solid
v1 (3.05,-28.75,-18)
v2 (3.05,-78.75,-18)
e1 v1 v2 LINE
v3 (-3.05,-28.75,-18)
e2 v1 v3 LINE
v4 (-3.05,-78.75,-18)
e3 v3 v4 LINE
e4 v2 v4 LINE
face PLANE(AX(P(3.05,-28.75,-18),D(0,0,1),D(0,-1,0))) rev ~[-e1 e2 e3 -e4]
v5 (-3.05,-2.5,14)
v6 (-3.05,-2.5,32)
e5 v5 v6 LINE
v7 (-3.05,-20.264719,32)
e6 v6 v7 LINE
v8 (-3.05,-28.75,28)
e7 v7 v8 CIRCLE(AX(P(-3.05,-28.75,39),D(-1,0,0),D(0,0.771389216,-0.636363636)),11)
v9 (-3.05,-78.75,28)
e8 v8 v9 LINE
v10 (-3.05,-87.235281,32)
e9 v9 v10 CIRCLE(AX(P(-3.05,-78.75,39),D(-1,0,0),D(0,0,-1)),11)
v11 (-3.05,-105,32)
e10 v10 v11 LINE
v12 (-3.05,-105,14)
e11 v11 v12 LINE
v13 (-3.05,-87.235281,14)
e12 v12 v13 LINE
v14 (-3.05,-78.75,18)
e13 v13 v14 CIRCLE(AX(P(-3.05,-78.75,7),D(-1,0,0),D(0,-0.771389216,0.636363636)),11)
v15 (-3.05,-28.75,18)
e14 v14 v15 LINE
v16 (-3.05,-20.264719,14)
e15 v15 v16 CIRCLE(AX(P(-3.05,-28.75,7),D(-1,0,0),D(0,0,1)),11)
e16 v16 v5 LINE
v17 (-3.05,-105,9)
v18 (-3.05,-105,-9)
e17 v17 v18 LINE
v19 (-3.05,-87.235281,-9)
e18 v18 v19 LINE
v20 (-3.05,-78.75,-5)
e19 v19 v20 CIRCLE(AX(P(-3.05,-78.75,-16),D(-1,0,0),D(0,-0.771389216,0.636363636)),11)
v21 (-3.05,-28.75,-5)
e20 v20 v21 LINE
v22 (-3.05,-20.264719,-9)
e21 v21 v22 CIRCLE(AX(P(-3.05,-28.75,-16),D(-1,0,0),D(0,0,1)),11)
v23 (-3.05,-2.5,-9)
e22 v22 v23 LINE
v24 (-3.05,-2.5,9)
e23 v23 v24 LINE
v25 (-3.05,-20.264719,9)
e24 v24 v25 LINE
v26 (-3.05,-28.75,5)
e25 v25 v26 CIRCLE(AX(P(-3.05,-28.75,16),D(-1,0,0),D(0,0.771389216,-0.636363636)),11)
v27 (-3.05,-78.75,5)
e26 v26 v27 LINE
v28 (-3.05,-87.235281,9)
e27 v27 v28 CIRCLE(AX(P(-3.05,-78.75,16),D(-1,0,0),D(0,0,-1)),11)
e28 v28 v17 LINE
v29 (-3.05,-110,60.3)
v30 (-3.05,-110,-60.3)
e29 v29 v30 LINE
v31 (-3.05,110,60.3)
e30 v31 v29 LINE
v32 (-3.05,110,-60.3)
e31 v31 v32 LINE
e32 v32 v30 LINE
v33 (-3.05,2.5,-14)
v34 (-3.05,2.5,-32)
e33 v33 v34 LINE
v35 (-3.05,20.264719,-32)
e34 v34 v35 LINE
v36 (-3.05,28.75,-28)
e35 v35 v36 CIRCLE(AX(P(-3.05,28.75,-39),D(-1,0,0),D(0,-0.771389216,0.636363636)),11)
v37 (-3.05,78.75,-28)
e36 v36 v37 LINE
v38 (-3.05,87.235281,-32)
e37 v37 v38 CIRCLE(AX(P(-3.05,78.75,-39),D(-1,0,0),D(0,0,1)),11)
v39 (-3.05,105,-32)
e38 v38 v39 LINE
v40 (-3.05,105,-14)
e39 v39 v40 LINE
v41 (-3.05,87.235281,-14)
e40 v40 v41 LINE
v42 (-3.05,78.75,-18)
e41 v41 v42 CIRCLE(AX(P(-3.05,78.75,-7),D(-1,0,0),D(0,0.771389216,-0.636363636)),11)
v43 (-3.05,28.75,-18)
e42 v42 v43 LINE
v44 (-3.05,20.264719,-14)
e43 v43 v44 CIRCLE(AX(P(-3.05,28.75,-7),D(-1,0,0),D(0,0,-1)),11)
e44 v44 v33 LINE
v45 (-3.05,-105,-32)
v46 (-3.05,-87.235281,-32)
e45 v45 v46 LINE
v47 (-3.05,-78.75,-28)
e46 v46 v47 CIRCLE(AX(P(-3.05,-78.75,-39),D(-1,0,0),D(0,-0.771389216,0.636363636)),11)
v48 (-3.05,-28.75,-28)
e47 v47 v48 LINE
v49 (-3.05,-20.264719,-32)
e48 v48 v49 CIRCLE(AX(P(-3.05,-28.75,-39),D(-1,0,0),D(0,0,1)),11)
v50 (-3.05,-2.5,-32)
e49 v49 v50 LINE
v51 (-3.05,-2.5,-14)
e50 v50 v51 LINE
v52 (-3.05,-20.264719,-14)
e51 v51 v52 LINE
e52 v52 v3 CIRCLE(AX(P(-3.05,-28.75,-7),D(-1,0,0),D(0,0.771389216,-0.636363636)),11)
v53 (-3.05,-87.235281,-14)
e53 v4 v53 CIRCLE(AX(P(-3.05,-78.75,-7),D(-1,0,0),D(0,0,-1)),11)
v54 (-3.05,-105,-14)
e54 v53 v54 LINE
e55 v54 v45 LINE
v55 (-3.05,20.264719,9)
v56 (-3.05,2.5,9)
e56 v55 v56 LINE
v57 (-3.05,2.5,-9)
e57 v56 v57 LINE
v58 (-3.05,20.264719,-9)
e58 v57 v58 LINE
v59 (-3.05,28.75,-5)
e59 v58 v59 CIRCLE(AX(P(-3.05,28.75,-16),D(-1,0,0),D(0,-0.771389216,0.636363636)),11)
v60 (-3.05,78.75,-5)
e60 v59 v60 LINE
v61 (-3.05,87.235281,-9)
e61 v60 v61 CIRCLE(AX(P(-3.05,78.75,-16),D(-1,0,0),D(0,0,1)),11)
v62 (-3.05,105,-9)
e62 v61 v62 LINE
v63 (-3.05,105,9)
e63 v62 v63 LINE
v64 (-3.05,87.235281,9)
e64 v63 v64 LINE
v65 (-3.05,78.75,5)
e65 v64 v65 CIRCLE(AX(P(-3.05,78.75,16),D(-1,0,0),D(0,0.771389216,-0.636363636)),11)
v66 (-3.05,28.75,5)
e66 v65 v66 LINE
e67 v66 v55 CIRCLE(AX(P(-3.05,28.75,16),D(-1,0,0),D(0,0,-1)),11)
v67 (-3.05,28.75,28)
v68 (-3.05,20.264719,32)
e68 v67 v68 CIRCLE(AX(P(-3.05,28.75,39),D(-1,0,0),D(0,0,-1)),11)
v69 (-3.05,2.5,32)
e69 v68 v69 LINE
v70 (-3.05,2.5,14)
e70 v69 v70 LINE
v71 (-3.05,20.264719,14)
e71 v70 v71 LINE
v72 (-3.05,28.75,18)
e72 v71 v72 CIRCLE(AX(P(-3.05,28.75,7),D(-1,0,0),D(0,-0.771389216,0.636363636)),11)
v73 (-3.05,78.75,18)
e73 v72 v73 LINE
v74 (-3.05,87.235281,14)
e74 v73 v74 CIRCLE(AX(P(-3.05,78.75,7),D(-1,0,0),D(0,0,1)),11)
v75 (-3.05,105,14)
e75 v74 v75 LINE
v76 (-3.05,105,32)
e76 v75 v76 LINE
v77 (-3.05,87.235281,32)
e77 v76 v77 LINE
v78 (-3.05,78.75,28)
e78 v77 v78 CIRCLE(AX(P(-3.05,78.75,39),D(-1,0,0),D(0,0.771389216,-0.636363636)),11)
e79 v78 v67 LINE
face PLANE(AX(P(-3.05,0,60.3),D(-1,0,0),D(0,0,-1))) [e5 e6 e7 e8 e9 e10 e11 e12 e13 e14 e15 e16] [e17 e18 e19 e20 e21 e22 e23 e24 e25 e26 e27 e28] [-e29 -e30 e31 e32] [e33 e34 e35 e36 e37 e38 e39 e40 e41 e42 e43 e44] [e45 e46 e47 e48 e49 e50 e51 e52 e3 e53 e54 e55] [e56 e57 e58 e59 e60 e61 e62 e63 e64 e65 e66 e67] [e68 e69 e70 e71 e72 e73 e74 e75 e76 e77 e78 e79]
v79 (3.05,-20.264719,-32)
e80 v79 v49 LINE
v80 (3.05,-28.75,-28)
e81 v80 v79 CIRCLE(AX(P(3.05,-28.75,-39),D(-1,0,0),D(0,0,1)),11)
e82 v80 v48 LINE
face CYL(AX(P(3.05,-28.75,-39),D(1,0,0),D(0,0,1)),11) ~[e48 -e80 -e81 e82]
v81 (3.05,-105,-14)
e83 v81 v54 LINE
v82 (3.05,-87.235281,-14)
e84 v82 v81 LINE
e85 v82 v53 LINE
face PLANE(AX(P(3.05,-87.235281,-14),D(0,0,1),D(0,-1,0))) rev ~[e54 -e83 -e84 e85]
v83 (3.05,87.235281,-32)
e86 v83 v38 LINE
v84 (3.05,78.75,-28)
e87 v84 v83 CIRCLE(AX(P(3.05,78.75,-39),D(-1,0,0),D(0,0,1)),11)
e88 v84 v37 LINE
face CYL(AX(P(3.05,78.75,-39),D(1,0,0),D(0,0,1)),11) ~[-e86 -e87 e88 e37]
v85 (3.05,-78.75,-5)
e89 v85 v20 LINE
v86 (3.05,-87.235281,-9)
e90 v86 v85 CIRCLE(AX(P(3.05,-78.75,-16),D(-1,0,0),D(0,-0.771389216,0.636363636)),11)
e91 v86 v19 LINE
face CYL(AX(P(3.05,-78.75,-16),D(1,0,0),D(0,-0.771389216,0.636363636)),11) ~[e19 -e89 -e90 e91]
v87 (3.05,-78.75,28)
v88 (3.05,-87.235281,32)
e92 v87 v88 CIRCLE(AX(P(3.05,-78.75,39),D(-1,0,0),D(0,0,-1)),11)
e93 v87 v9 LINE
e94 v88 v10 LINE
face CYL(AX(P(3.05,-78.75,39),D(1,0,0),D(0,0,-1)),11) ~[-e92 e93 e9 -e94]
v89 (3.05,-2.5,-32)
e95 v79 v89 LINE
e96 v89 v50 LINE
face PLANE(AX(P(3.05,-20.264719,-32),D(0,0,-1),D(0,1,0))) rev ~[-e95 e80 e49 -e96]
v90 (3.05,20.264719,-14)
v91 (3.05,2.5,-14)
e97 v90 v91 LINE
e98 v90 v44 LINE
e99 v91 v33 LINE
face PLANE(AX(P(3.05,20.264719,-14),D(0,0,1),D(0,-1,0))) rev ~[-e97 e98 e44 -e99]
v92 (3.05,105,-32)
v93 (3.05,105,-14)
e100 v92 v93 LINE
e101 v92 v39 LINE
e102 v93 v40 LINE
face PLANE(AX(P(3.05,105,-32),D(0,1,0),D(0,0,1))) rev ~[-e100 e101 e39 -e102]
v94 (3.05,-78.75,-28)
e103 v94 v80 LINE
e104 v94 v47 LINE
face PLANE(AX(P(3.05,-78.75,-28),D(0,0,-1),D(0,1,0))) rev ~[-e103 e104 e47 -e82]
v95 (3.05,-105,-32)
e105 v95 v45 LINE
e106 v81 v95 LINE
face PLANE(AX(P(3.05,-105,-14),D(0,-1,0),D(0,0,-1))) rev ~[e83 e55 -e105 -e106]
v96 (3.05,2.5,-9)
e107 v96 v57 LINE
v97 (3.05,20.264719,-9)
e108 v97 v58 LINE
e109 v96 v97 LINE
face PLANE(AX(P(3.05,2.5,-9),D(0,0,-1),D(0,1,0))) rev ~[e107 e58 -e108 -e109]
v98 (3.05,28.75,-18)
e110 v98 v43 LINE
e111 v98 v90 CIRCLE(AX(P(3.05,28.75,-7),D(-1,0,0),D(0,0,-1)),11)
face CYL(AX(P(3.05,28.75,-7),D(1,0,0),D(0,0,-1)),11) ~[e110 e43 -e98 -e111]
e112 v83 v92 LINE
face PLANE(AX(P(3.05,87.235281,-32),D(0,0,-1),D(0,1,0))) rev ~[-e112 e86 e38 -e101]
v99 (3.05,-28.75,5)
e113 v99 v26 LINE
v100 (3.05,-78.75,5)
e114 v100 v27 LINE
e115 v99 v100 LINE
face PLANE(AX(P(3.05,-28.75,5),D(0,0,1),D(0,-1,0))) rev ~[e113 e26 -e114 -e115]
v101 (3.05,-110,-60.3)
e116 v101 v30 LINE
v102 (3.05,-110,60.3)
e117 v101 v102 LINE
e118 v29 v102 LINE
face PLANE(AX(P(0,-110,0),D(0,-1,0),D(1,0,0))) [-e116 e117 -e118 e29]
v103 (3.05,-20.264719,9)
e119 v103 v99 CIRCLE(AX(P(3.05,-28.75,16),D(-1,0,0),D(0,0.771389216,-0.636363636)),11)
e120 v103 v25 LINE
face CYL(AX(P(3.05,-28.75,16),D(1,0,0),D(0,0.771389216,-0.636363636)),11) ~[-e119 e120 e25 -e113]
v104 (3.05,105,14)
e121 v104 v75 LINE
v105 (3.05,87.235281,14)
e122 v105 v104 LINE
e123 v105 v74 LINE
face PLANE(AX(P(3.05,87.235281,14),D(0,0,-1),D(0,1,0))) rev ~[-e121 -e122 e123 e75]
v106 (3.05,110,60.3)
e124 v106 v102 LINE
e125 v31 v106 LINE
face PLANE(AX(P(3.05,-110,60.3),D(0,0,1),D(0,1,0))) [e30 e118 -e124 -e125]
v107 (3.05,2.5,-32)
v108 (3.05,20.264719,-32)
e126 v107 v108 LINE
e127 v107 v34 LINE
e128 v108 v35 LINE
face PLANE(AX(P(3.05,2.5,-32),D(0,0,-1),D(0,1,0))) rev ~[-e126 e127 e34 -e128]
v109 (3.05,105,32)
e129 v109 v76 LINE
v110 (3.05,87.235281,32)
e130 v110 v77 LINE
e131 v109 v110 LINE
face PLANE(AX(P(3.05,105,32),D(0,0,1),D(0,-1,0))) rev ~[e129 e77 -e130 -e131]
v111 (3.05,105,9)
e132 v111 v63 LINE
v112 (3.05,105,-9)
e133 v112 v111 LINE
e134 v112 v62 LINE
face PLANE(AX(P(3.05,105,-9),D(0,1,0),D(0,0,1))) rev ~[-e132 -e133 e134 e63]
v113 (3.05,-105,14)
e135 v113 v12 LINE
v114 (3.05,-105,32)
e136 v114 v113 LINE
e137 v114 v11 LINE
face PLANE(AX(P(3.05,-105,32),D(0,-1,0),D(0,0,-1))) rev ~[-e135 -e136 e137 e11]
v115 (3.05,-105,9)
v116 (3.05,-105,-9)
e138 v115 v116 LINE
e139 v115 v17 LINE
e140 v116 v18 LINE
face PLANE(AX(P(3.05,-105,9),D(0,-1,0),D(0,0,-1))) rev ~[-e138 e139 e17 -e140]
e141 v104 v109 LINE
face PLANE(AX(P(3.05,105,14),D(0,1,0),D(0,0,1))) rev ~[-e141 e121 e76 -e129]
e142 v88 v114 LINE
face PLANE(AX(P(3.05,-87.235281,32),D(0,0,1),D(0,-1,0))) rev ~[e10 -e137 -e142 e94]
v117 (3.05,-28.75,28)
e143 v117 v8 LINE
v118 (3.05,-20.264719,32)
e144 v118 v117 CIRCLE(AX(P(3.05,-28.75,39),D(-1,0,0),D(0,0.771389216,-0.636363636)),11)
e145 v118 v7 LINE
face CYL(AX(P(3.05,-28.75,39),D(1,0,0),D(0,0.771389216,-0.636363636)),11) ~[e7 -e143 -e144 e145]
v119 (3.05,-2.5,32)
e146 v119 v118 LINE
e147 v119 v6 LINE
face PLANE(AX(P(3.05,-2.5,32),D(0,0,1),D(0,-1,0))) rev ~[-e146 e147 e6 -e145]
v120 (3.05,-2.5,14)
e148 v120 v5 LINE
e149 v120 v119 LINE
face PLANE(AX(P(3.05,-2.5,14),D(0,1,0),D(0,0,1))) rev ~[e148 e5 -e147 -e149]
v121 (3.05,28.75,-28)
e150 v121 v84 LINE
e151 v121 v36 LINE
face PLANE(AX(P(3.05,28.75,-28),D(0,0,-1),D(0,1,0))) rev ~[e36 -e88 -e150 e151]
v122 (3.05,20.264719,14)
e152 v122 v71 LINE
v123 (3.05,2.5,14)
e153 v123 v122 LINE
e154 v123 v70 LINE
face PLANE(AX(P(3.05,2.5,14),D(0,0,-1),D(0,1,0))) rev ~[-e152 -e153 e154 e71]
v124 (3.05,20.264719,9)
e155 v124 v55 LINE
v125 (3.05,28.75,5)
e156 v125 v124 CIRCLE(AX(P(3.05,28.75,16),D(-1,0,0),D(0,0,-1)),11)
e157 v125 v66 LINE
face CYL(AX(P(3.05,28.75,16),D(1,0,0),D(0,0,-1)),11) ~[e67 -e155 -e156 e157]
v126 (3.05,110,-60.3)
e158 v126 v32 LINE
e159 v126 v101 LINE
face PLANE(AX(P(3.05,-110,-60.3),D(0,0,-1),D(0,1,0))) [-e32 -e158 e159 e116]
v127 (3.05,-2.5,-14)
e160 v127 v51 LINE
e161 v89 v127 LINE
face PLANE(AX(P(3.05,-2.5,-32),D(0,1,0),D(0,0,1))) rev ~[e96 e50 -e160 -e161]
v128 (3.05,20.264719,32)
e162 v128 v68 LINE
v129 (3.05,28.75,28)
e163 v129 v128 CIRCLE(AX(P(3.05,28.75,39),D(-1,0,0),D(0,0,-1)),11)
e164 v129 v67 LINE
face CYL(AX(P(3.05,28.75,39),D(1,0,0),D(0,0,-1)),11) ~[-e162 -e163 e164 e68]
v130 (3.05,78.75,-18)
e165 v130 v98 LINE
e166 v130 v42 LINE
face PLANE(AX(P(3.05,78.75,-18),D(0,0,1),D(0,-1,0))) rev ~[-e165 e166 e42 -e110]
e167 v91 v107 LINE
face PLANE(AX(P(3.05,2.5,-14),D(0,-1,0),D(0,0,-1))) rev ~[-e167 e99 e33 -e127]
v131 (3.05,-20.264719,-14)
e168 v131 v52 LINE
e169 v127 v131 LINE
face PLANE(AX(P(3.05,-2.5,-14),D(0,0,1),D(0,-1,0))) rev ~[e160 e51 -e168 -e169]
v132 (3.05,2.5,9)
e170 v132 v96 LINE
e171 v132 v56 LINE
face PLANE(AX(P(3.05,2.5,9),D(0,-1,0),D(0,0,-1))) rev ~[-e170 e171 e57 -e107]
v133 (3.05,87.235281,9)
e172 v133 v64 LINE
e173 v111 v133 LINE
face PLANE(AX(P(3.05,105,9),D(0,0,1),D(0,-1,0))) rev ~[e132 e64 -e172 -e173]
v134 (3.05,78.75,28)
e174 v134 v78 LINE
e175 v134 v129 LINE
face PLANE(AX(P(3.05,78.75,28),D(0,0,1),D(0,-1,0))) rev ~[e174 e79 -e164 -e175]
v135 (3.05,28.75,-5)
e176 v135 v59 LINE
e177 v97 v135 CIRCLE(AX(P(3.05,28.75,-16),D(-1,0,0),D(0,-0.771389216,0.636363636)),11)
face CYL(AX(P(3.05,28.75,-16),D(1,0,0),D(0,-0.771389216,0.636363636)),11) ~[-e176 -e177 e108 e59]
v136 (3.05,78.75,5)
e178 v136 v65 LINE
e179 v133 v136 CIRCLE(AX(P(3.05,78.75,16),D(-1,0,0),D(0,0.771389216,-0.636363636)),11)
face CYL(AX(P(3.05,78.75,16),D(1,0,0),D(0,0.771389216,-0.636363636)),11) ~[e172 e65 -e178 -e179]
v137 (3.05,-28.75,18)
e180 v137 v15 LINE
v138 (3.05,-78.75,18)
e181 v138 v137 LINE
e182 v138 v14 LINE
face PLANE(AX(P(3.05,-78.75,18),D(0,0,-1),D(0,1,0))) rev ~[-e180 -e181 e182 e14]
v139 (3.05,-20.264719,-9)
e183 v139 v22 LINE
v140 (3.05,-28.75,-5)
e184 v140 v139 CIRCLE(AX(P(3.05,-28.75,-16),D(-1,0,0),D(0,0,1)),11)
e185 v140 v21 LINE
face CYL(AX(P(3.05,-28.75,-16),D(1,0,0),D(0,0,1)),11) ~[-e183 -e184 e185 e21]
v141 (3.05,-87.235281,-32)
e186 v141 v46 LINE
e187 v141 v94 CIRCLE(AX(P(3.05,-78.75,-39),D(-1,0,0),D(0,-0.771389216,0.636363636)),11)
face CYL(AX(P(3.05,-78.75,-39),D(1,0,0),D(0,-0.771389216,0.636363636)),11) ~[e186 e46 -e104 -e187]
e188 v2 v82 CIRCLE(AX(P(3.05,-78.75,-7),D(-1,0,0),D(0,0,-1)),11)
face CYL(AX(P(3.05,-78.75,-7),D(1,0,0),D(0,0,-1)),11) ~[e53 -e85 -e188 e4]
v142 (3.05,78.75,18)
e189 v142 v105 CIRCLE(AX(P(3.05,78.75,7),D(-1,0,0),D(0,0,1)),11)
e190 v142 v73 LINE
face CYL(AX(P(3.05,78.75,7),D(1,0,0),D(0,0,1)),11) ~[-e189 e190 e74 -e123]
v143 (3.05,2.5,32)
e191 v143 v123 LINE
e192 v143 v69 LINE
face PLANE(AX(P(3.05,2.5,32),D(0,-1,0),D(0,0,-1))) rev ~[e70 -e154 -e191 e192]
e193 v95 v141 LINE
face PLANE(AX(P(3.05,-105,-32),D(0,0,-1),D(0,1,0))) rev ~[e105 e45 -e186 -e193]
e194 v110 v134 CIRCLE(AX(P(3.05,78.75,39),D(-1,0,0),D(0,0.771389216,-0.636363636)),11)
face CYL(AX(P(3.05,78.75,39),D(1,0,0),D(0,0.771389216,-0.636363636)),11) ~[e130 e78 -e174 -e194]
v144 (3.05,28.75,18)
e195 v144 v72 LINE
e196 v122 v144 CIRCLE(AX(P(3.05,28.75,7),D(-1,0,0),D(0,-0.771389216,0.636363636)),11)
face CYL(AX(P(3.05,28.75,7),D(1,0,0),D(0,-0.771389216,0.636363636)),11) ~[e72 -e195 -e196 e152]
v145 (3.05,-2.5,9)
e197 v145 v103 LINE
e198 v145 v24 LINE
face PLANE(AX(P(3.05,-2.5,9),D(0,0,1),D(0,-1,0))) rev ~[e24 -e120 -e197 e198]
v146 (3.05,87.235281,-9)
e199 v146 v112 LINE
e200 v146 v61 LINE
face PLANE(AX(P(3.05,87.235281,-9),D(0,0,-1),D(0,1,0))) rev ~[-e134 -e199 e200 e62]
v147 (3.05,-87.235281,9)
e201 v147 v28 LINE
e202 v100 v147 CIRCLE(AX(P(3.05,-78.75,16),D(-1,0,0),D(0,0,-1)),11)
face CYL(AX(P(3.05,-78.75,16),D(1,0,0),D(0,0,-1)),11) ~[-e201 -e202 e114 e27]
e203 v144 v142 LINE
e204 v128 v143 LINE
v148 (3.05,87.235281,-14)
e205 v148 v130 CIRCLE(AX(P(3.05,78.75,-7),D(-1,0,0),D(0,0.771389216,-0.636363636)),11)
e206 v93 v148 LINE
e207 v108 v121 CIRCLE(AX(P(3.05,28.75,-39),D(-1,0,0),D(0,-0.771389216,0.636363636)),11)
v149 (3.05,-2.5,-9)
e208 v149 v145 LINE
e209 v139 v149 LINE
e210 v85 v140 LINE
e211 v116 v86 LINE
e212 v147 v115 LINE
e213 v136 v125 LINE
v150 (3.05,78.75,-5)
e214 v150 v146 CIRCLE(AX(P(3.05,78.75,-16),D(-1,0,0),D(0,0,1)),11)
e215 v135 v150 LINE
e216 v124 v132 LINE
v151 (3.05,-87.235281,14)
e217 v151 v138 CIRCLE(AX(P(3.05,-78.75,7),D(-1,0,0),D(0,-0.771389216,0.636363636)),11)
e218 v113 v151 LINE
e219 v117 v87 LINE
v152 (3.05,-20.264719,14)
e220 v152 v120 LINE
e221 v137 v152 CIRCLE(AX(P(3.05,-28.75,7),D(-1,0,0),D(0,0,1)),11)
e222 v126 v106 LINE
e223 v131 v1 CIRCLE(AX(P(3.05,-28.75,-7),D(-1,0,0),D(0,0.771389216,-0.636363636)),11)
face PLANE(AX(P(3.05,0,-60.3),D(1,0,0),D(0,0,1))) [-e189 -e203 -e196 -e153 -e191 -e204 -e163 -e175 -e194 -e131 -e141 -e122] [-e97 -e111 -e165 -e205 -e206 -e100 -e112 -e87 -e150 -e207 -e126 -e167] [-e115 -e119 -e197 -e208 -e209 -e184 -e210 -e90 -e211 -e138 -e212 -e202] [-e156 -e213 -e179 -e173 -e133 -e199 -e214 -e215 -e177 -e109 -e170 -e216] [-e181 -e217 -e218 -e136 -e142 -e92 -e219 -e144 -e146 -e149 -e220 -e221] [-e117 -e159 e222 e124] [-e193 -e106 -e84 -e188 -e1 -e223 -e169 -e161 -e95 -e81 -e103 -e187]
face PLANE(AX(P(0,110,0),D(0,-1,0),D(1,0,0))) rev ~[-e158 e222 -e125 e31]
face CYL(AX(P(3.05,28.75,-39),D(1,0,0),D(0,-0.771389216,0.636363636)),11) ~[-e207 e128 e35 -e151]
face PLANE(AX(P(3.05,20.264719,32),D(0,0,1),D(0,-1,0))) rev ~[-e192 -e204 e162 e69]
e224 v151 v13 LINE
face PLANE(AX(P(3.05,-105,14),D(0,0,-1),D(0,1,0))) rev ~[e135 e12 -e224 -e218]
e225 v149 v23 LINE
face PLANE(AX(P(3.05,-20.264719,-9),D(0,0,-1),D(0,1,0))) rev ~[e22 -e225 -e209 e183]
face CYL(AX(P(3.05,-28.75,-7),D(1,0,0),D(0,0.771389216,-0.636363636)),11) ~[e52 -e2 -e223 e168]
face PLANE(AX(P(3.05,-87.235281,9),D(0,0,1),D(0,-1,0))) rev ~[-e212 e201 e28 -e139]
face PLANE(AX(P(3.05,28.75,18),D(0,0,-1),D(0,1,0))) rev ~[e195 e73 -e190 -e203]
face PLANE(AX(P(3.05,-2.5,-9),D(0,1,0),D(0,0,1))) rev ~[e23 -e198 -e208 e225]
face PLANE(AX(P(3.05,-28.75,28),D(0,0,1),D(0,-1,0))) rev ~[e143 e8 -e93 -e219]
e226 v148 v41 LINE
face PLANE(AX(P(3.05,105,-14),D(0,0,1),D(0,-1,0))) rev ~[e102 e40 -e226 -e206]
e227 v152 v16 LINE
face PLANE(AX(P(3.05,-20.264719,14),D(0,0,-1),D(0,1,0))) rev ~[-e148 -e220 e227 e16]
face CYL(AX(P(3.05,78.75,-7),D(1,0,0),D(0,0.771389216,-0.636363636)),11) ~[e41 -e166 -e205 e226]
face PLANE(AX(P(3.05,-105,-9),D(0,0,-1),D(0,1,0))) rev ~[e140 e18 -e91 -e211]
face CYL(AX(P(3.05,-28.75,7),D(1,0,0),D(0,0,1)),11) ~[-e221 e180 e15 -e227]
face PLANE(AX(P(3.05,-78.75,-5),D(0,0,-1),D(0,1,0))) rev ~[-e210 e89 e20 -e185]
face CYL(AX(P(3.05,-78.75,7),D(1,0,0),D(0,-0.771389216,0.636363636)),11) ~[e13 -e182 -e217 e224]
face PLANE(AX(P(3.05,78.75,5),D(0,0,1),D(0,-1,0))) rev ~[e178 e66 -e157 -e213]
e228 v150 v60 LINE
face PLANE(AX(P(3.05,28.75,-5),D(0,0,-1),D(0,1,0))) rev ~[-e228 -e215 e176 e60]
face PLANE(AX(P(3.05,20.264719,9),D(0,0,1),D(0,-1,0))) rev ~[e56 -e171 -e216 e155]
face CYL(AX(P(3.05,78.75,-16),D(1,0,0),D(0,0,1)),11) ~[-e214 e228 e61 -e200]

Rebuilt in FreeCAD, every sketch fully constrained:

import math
import FreeCAD as App
import Part
import Sketcher
from FreeCAD import Vector


def add_polygon(sketch, points):
    """Adds a closed chain of lines whose ends are joined by coincident constraints."""
    first, n = sketch.GeometryCount, len(points)
    for a, b in zip(points, points[1:] + points[:1]):
        sketch.addGeometry(Part.LineSegment(App.Vector(*a, 0), App.Vector(*b, 0)), False)
    for i in range(n):
        sketch.addConstraint(Sketcher.Constraint("Coincident", first + i, 2, first + (i + 1) % n, 1))

doc = App.newDocument("Part")
body = doc.addObject("PartDesign::Body", "Body")

# Sketch on XZ plane
sketch1 = doc.addObject("Sketcher::SketchObject", "Sketch")
body.addObject(sketch1)
sketch1.AttachmentSupport = (doc.XZ_Plane, [""])
sketch1.MapMode = "FlatFace"
sketch1.addGeometry(Part.ArcOfCircle(Part.Circle(Vector(11.95, -60.3, 0), Vector(0, 0, 1), 8.9), math.radians(180), math.radians(270)), False)
sketch1.addGeometry(Part.LineSegment(Vector(3.05, -60.3, 0), Vector(3.05, 60.3, 0)), False)
sketch1.addGeometry(Part.ArcOfCircle(Part.Circle(Vector(11.95, 60.3, 0), Vector(0, 0, 1), 8.9), math.radians(90), math.radians(180)), False)
sketch1.addGeometry(Part.LineSegment(Vector(11.95, 69.2, 0), Vector(76, 69.2, 0)), False)
sketch1.addGeometry(Part.LineSegment(Vector(76, 69.2, 0), Vector(76, 76, 0)), False)
sketch1.addGeometry(Part.LineSegment(Vector(76, 76, 0), Vector(-76, 76, 0)), False)
sketch1.addGeometry(Part.LineSegment(Vector(-76, 76, 0), Vector(-76, 69.2, 0)), False)
sketch1.addGeometry(Part.LineSegment(Vector(-76, 69.2, 0), Vector(-11.95, 69.2, 0)), False)
sketch1.addGeometry(Part.ArcOfCircle(Part.Circle(Vector(-11.95, 60.3, 0), Vector(0, 0, 1), 8.9), math.radians(0), math.radians(90)), False)
sketch1.addGeometry(Part.LineSegment(Vector(-3.05, 60.3, 0), Vector(-3.05, -60.3, 0)), False)
sketch1.addGeometry(Part.ArcOfCircle(Part.Circle(Vector(-11.95, -60.3, 0), Vector(0, 0, 1), 8.9), math.radians(-90), math.radians(0)), False)
sketch1.addGeometry(Part.LineSegment(Vector(-11.95, -69.2, 0), Vector(-76, -69.2, 0)), False)
sketch1.addGeometry(Part.LineSegment(Vector(-76, -69.2, 0), Vector(-76, -76, 0)), False)
sketch1.addGeometry(Part.LineSegment(Vector(-76, -76, 0), Vector(76, -76, 0)), False)
sketch1.addGeometry(Part.LineSegment(Vector(76, -76, 0), Vector(76, -69.2, 0)), False)
sketch1.addGeometry(Part.LineSegment(Vector(76, -69.2, 0), Vector(11.95, -69.2, 0)), False)
sketch1.addConstraint(Sketcher.Constraint("Tangent", 0, 1, 1, 1))
sketch1.addConstraint(Sketcher.Constraint("Tangent", 1, 2, 2, 2))
sketch1.addConstraint(Sketcher.Constraint("Tangent", 2, 1, 3, 1))
sketch1.addConstraint(Sketcher.Constraint("Coincident", 3, 2, 4, 1))
sketch1.addConstraint(Sketcher.Constraint("Coincident", 4, 2, 5, 1))
sketch1.addConstraint(Sketcher.Constraint("Coincident", 5, 2, 6, 1))
sketch1.addConstraint(Sketcher.Constraint("Coincident", 6, 2, 7, 1))
sketch1.addConstraint(Sketcher.Constraint("Tangent", 7, 2, 8, 2))
sketch1.addConstraint(Sketcher.Constraint("Tangent", 8, 1, 9, 1))
sketch1.addConstraint(Sketcher.Constraint("Tangent", 9, 2, 10, 2))
sketch1.addConstraint(Sketcher.Constraint("Tangent", 10, 1, 11, 1))
sketch1.addConstraint(Sketcher.Constraint("Coincident", 11, 2, 12, 1))
sketch1.addConstraint(Sketcher.Constraint("Coincident", 12, 2, 13, 1))
sketch1.addConstraint(Sketcher.Constraint("Coincident", 13, 2, 14, 1))
sketch1.addConstraint(Sketcher.Constraint("Coincident", 14, 2, 15, 1))
sketch1.addConstraint(Sketcher.Constraint("Tangent", 15, 2, 0, 2))
sketch1.addConstraint(Sketcher.Constraint("Vertical", 1))
sketch1.addConstraint(Sketcher.Constraint("Horizontal", 3))
sketch1.addConstraint(Sketcher.Constraint("Vertical", 4))
sketch1.addConstraint(Sketcher.Constraint("Horizontal", 5))
sketch1.addConstraint(Sketcher.Constraint("Vertical", 6))
sketch1.addConstraint(Sketcher.Constraint("Horizontal", 7))
sketch1.addConstraint(Sketcher.Constraint("Vertical", 9))
sketch1.addConstraint(Sketcher.Constraint("Horizontal", 11))
sketch1.addConstraint(Sketcher.Constraint("Vertical", 12))
sketch1.addConstraint(Sketcher.Constraint("Horizontal", 13))
sketch1.addConstraint(Sketcher.Constraint("Vertical", 14))
sketch1.addConstraint(Sketcher.Constraint("Horizontal", 15))
sketch1.addConstraint(Sketcher.Constraint("Equal", 0, 2))
sketch1.addConstraint(Sketcher.Constraint("Equal", 2, 8))
sketch1.addConstraint(Sketcher.Constraint("Equal", 8, 10))
sketch1.addConstraint(Sketcher.Constraint("Symmetric", 0, 3, 8, 3, -1, 1))
sketch1.addConstraint(Sketcher.Constraint("Symmetric", 3, 2, 11, 2, -1, 1))
sketch1.addConstraint(Sketcher.Constraint("Symmetric", 5, 2, 13, 2, -1, 1))
sketch1.addConstraint(Sketcher.Constraint("Symmetric", 3, 2, 6, 2, -2))
sketch1.addConstraint(Sketcher.Constraint("Radius", 0, 8.9))
sketch1.addConstraint(Sketcher.Constraint("DistanceX", 5, 2, 5, 1, 152.0))
sketch1.addConstraint(Sketcher.Constraint("DistanceY", 1, 1, 1, 2, 120.6))
sketch1.addConstraint(Sketcher.Constraint("DistanceY", 4, 1, 4, 2, 6.8))
sketch1.addConstraint(Sketcher.Constraint("DistanceX", 10, 3, 0, 1, 15.0))
pad1 = doc.addObject("PartDesign::Pad", "Pad")
body.addObject(pad1)
pad1.Profile = sketch1
pad1.Length = 220
pad1.Midplane = True

# Sketch on YZ plane
sketch2 = doc.addObject("Sketcher::SketchObject", "Sketch001")
body.addObject(sketch2)
sketch2.AttachmentSupport = (doc.YZ_Plane, [""])
sketch2.MapMode = "FlatFace"
sketch2.AttachmentOffset = App.Placement(Vector(0, 0, 3.05), App.Rotation())
sketch2.addGeometry(Part.LineSegment(Vector(-20.264719, -9, 0), Vector(-2.5, -9, 0)), False)
sketch2.addGeometry(Part.LineSegment(Vector(-2.5, -9, 0), Vector(-2.5, 9, 0)), False)
sketch2.addGeometry(Part.LineSegment(Vector(-2.5, 9, 0), Vector(-20.264719, 9, 0)), False)
sketch2.addGeometry(Part.ArcOfCircle(Part.Circle(Vector(-28.75, 16, 0), Vector(0, 0, 1), 11), math.radians(-90), math.radians(-39.521196)), False)
sketch2.addGeometry(Part.LineSegment(Vector(-28.75, 5, 0), Vector(-78.75, 5, 0)), False)
sketch2.addGeometry(Part.ArcOfCircle(Part.Circle(Vector(-78.75, 16, 0), Vector(0, 0, 1), 11), math.radians(-140.478804), math.radians(-90)), False)
sketch2.addGeometry(Part.LineSegment(Vector(-87.235281, 9, 0), Vector(-105, 9, 0)), False)
sketch2.addGeometry(Part.LineSegment(Vector(-105, 9, 0), Vector(-105, -9, 0)), False)
sketch2.addGeometry(Part.LineSegment(Vector(-105, -9, 0), Vector(-87.235281, -9, 0)), False)
sketch2.addGeometry(Part.ArcOfCircle(Part.Circle(Vector(-78.75, -16, 0), Vector(0, 0, 1), 11), math.radians(90), math.radians(140.478804)), False)
sketch2.addGeometry(Part.LineSegment(Vector(-78.75, -5, 0), Vector(-28.75, -5, 0)), False)
sketch2.addGeometry(Part.ArcOfCircle(Part.Circle(Vector(-28.75, -16, 0), Vector(0, 0, 1), 11), math.radians(39.521196), math.radians(90)), False)
sketch2.addGeometry(Part.ArcOfCircle(Part.Circle(Vector(-28.75, 39, 0), Vector(0, 0, 1), 11), math.radians(-90), math.radians(-39.521196)), False)
sketch2.addGeometry(Part.LineSegment(Vector(-28.75, 28, 0), Vector(-78.75, 28, 0)), False)
sketch2.addGeometry(Part.ArcOfCircle(Part.Circle(Vector(-78.75, 39, 0), Vector(0, 0, 1), 11), math.radians(-140.478804), math.radians(-90)), False)
sketch2.addGeometry(Part.LineSegment(Vector(-87.235281, 32, 0), Vector(-105, 32, 0)), False)
sketch2.addGeometry(Part.LineSegment(Vector(-105, 32, 0), Vector(-105, 14, 0)), False)
sketch2.addGeometry(Part.LineSegment(Vector(-105, 14, 0), Vector(-87.235281, 14, 0)), False)
sketch2.addGeometry(Part.ArcOfCircle(Part.Circle(Vector(-78.75, 7, 0), Vector(0, 0, 1), 11), math.radians(90), math.radians(140.478804)), False)
sketch2.addGeometry(Part.LineSegment(Vector(-78.75, 18, 0), Vector(-28.75, 18, 0)), False)
sketch2.addGeometry(Part.ArcOfCircle(Part.Circle(Vector(-28.75, 7, 0), Vector(0, 0, 1), 11), math.radians(39.521196), math.radians(90)), False)
sketch2.addGeometry(Part.LineSegment(Vector(-20.264719, 14, 0), Vector(-2.5, 14, 0)), False)
sketch2.addGeometry(Part.LineSegment(Vector(-2.5, 14, 0), Vector(-2.5, 32, 0)), False)
sketch2.addGeometry(Part.LineSegment(Vector(-2.5, 32, 0), Vector(-20.264719, 32, 0)), False)
sketch2.addGeometry(Part.ArcOfCircle(Part.Circle(Vector(-28.75, -39, 0), Vector(0, 0, 1), 11), math.radians(39.521196), math.radians(90)), False)
sketch2.addGeometry(Part.LineSegment(Vector(-20.264719, -32, 0), Vector(-2.5, -32, 0)), False)
sketch2.addGeometry(Part.LineSegment(Vector(-2.5, -32, 0), Vector(-2.5, -14, 0)), False)
sketch2.addGeometry(Part.LineSegment(Vector(-2.5, -14, 0), Vector(-20.264719, -14, 0)), False)
sketch2.addGeometry(Part.ArcOfCircle(Part.Circle(Vector(-28.75, -7, 0), Vector(0, 0, 1), 11), math.radians(-90), math.radians(-39.521196)), False)
sketch2.addGeometry(Part.LineSegment(Vector(-28.75, -18, 0), Vector(-78.75, -18, 0)), False)
sketch2.addGeometry(Part.ArcOfCircle(Part.Circle(Vector(-78.75, -7, 0), Vector(0, 0, 1), 11), math.radians(-140.478804), math.radians(-90)), False)
sketch2.addGeometry(Part.LineSegment(Vector(-87.235281, -14, 0), Vector(-105, -14, 0)), False)
sketch2.addGeometry(Part.LineSegment(Vector(-105, -14, 0), Vector(-105, -32, 0)), False)
sketch2.addGeometry(Part.LineSegment(Vector(-105, -32, 0), Vector(-87.235281, -32, 0)), False)
sketch2.addGeometry(Part.ArcOfCircle(Part.Circle(Vector(-78.75, -39, 0), Vector(0, 0, 1), 11), math.radians(90), math.radians(140.478804)), False)
sketch2.addGeometry(Part.LineSegment(Vector(-78.75, -28, 0), Vector(-28.75, -28, 0)), False)
sketch2.addGeometry(Part.LineSegment(Vector(78.75, 28, 0), Vector(28.75, 28, 0)), False)
sketch2.addGeometry(Part.ArcOfCircle(Part.Circle(Vector(28.75, 39, 0), Vector(0, 0, 1), 11), math.radians(-140.478804), math.radians(-90)), False)
sketch2.addGeometry(Part.LineSegment(Vector(20.264719, 32, 0), Vector(2.5, 32, 0)), False)
sketch2.addGeometry(Part.LineSegment(Vector(2.5, 32, 0), Vector(2.5, 14, 0)), False)
sketch2.addGeometry(Part.LineSegment(Vector(2.5, 14, 0), Vector(20.264719, 14, 0)), False)
sketch2.addGeometry(Part.ArcOfCircle(Part.Circle(Vector(28.75, 7, 0), Vector(0, 0, 1), 11), math.radians(90), math.radians(140.478804)), False)
sketch2.addGeometry(Part.LineSegment(Vector(28.75, 18, 0), Vector(78.75, 18, 0)), False)
sketch2.addGeometry(Part.ArcOfCircle(Part.Circle(Vector(78.75, 7, 0), Vector(0, 0, 1), 11), math.radians(39.521196), math.radians(90)), False)
sketch2.addGeometry(Part.LineSegment(Vector(87.235281, 14, 0), Vector(105, 14, 0)), False)
sketch2.addGeometry(Part.LineSegment(Vector(105, 14, 0), Vector(105, 32, 0)), False)
sketch2.addGeometry(Part.LineSegment(Vector(105, 32, 0), Vector(87.235281, 32, 0)), False)
sketch2.addGeometry(Part.ArcOfCircle(Part.Circle(Vector(78.75, 39, 0), Vector(0, 0, 1), 11), math.radians(-90), math.radians(-39.521196)), False)
sketch2.addGeometry(Part.ArcOfCircle(Part.Circle(Vector(28.75, -39, 0), Vector(0, 0, 1), 11), math.radians(90), math.radians(140.478804)), False)
sketch2.addGeometry(Part.LineSegment(Vector(28.75, -28, 0), Vector(78.75, -28, 0)), False)
sketch2.addGeometry(Part.ArcOfCircle(Part.Circle(Vector(78.75, -39, 0), Vector(0, 0, 1), 11), math.radians(39.521196), math.radians(90)), False)
sketch2.addGeometry(Part.LineSegment(Vector(87.235281, -32, 0), Vector(105, -32, 0)), False)
sketch2.addGeometry(Part.LineSegment(Vector(105, -32, 0), Vector(105, -14, 0)), False)
sketch2.addGeometry(Part.LineSegment(Vector(105, -14, 0), Vector(87.235281, -14, 0)), False)
sketch2.addGeometry(Part.ArcOfCircle(Part.Circle(Vector(78.75, -7, 0), Vector(0, 0, 1), 11), math.radians(-90), math.radians(-39.521196)), False)
sketch2.addGeometry(Part.LineSegment(Vector(78.75, -18, 0), Vector(28.75, -18, 0)), False)
sketch2.addGeometry(Part.ArcOfCircle(Part.Circle(Vector(28.75, -7, 0), Vector(0, 0, 1), 11), math.radians(-140.478804), math.radians(-90)), False)
sketch2.addGeometry(Part.LineSegment(Vector(20.264719, -14, 0), Vector(2.5, -14, 0)), False)
sketch2.addGeometry(Part.LineSegment(Vector(2.5, -14, 0), Vector(2.5, -32, 0)), False)
sketch2.addGeometry(Part.LineSegment(Vector(2.5, -32, 0), Vector(20.264719, -32, 0)), False)
sketch2.addGeometry(Part.ArcOfCircle(Part.Circle(Vector(28.75, -16, 0), Vector(0, 0, 1), 11), math.radians(90), math.radians(140.478804)), False)
sketch2.addGeometry(Part.LineSegment(Vector(28.75, -5, 0), Vector(78.75, -5, 0)), False)
sketch2.addGeometry(Part.ArcOfCircle(Part.Circle(Vector(78.75, -16, 0), Vector(0, 0, 1), 11), math.radians(39.521196), math.radians(90)), False)
sketch2.addGeometry(Part.LineSegment(Vector(87.235281, -9, 0), Vector(105, -9, 0)), False)
sketch2.addGeometry(Part.LineSegment(Vector(105, -9, 0), Vector(105, 9, 0)), False)
sketch2.addGeometry(Part.LineSegment(Vector(105, 9, 0), Vector(87.235281, 9, 0)), False)
sketch2.addGeometry(Part.ArcOfCircle(Part.Circle(Vector(78.75, 16, 0), Vector(0, 0, 1), 11), math.radians(-90), math.radians(-39.521196)), False)
sketch2.addGeometry(Part.LineSegment(Vector(78.75, 5, 0), Vector(28.75, 5, 0)), False)
sketch2.addGeometry(Part.ArcOfCircle(Part.Circle(Vector(28.75, 16, 0), Vector(0, 0, 1), 11), math.radians(-140.478804), math.radians(-90)), False)
sketch2.addGeometry(Part.LineSegment(Vector(20.264719, 9, 0), Vector(2.5, 9, 0)), False)
sketch2.addGeometry(Part.LineSegment(Vector(2.5, 9, 0), Vector(2.5, -9, 0)), False)
sketch2.addGeometry(Part.LineSegment(Vector(2.5, -9, 0), Vector(20.264719, -9, 0)), False)
sketch2.addConstraint(Sketcher.Constraint("Coincident", 0, 2, 1, 1))
sketch2.addConstraint(Sketcher.Constraint("Coincident", 1, 2, 2, 1))
sketch2.addConstraint(Sketcher.Constraint("Coincident", 2, 2, 3, 2))
sketch2.addConstraint(Sketcher.Constraint("Tangent", 3, 1, 4, 1))
sketch2.addConstraint(Sketcher.Constraint("Tangent", 4, 2, 5, 2))
sketch2.addConstraint(Sketcher.Constraint("Coincident", 5, 1, 6, 1))
sketch2.addConstraint(Sketcher.Constraint("Coincident", 6, 2, 7, 1))
sketch2.addConstraint(Sketcher.Constraint("Coincident", 7, 2, 8, 1))
sketch2.addConstraint(Sketcher.Constraint("Coincident", 8, 2, 9, 2))
sketch2.addConstraint(Sketcher.Constraint("Tangent", 9, 1, 10, 1))
sketch2.addConstraint(Sketcher.Constraint("Tangent", 10, 2, 11, 2))
sketch2.addConstraint(Sketcher.Constraint("Coincident", 11, 1, 0, 1))
sketch2.addConstraint(Sketcher.Constraint("Tangent", 12, 1, 13, 1))
sketch2.addConstraint(Sketcher.Constraint("Tangent", 13, 2, 14, 2))
sketch2.addConstraint(Sketcher.Constraint("Coincident", 14, 1, 15, 1))
sketch2.addConstraint(Sketcher.Constraint("Coincident", 15, 2, 16, 1))
sketch2.addConstraint(Sketcher.Constraint("Coincident", 16, 2, 17, 1))
sketch2.addConstraint(Sketcher.Constraint("Coincident", 17, 2, 18, 2))
sketch2.addConstraint(Sketcher.Constraint("Tangent", 18, 1, 19, 1))
sketch2.addConstraint(Sketcher.Constraint("Tangent", 19, 2, 20, 2))
sketch2.addConstraint(Sketcher.Constraint("Coincident", 20, 1, 21, 1))
sketch2.addConstraint(Sketcher.Constraint("Coincident", 21, 2, 22, 1))
sketch2.addConstraint(Sketcher.Constraint("Coincident", 22, 2, 23, 1))
sketch2.addConstraint(Sketcher.Constraint("Coincident", 23, 2, 12, 2))
sketch2.addConstraint(Sketcher.Constraint("Coincident", 24, 1, 25, 1))
sketch2.addConstraint(Sketcher.Constraint("Coincident", 25, 2, 26, 1))
sketch2.addConstraint(Sketcher.Constraint("Coincident", 26, 2, 27, 1))
sketch2.addConstraint(Sketcher.Constraint("Coincident", 27, 2, 28, 2))
sketch2.addConstraint(Sketcher.Constraint("Tangent", 28, 1, 29, 1))
sketch2.addConstraint(Sketcher.Constraint("Tangent", 29, 2, 30, 2))
sketch2.addConstraint(Sketcher.Constraint("Coincident", 30, 1, 31, 1))
sketch2.addConstraint(Sketcher.Constraint("Coincident", 31, 2, 32, 1))
sketch2.addConstraint(Sketcher.Constraint("Coincident", 32, 2, 33, 1))
sketch2.addConstraint(Sketcher.Constraint("Coincident", 33, 2, 34, 2))
sketch2.addConstraint(Sketcher.Constraint("Tangent", 34, 1, 35, 1))
sketch2.addConstraint(Sketcher.Constraint("Tangent", 35, 2, 24, 2))
sketch2.addConstraint(Sketcher.Constraint("Tangent", 36, 2, 37, 2))
sketch2.addConstraint(Sketcher.Constraint("Coincident", 37, 1, 38, 1))
sketch2.addConstraint(Sketcher.Constraint("Coincident", 38, 2, 39, 1))
sketch2.addConstraint(Sketcher.Constraint("Coincident", 39, 2, 40, 1))
sketch2.addConstraint(Sketcher.Constraint("Coincident", 40, 2, 41, 2))
sketch2.addConstraint(Sketcher.Constraint("Tangent", 41, 1, 42, 1))
sketch2.addConstraint(Sketcher.Constraint("Tangent", 42, 2, 43, 2))
sketch2.addConstraint(Sketcher.Constraint("Coincident", 43, 1, 44, 1))
sketch2.addConstraint(Sketcher.Constraint("Coincident", 44, 2, 45, 1))
sketch2.addConstraint(Sketcher.Constraint("Coincident", 45, 2, 46, 1))
sketch2.addConstraint(Sketcher.Constraint("Coincident", 46, 2, 47, 2))
sketch2.addConstraint(Sketcher.Constraint("Tangent", 47, 1, 36, 1))
sketch2.addConstraint(Sketcher.Constraint("Tangent", 48, 1, 49, 1))
sketch2.addConstraint(Sketcher.Constraint("Tangent", 49, 2, 50, 2))
sketch2.addConstraint(Sketcher.Constraint("Coincident", 50, 1, 51, 1))
sketch2.addConstraint(Sketcher.Constraint("Coincident", 51, 2, 52, 1))
sketch2.addConstraint(Sketcher.Constraint("Coincident", 52, 2, 53, 1))
sketch2.addConstraint(Sketcher.Constraint("Coincident", 53, 2, 54, 2))
sketch2.addConstraint(Sketcher.Constraint("Tangent", 54, 1, 55, 1))
sketch2.addConstraint(Sketcher.Constraint("Tangent", 55, 2, 56, 2))
sketch2.addConstraint(Sketcher.Constraint("Coincident", 56, 1, 57, 1))
sketch2.addConstraint(Sketcher.Constraint("Coincident", 57, 2, 58, 1))
sketch2.addConstraint(Sketcher.Constraint("Coincident", 58, 2, 59, 1))
sketch2.addConstraint(Sketcher.Constraint("Coincident", 59, 2, 48, 2))
sketch2.addConstraint(Sketcher.Constraint("Tangent", 60, 1, 61, 1))
sketch2.addConstraint(Sketcher.Constraint("Tangent", 61, 2, 62, 2))
sketch2.addConstraint(Sketcher.Constraint("Coincident", 62, 1, 63, 1))
sketch2.addConstraint(Sketcher.Constraint("Coincident", 63, 2, 64, 1))
sketch2.addConstraint(Sketcher.Constraint("Coincident", 64, 2, 65, 1))
sketch2.addConstraint(Sketcher.Constraint("Coincident", 65, 2, 66, 2))
sketch2.addConstraint(Sketcher.Constraint("Tangent", 66, 1, 67, 1))
sketch2.addConstraint(Sketcher.Constraint("Tangent", 67, 2, 68, 2))
sketch2.addConstraint(Sketcher.Constraint("Coincident", 68, 1, 69, 1))
sketch2.addConstraint(Sketcher.Constraint("Coincident", 69, 2, 70, 1))
sketch2.addConstraint(Sketcher.Constraint("Coincident", 70, 2, 71, 1))
sketch2.addConstraint(Sketcher.Constraint("Coincident", 71, 2, 60, 2))
sketch2.addConstraint(Sketcher.Constraint("Horizontal", 0))
sketch2.addConstraint(Sketcher.Constraint("Vertical", 1))
sketch2.addConstraint(Sketcher.Constraint("Horizontal", 2))
sketch2.addConstraint(Sketcher.Constraint("Horizontal", 4))
sketch2.addConstraint(Sketcher.Constraint("Horizontal", 6))
sketch2.addConstraint(Sketcher.Constraint("Vertical", 7))
sketch2.addConstraint(Sketcher.Constraint("Horizontal", 8))
sketch2.addConstraint(Sketcher.Constraint("Horizontal", 10))
sketch2.addConstraint(Sketcher.Constraint("Horizontal", 13))
sketch2.addConstraint(Sketcher.Constraint("Horizontal", 15))
sketch2.addConstraint(Sketcher.Constraint("Vertical", 16))
sketch2.addConstraint(Sketcher.Constraint("Horizontal", 17))
sketch2.addConstraint(Sketcher.Constraint("Horizontal", 19))
sketch2.addConstraint(Sketcher.Constraint("Horizontal", 21))
sketch2.addConstraint(Sketcher.Constraint("Vertical", 22))
sketch2.addConstraint(Sketcher.Constraint("Horizontal", 23))
sketch2.addConstraint(Sketcher.Constraint("Horizontal", 25))
sketch2.addConstraint(Sketcher.Constraint("Vertical", 26))
sketch2.addConstraint(Sketcher.Constraint("Horizontal", 27))
sketch2.addConstraint(Sketcher.Constraint("Horizontal", 29))
sketch2.addConstraint(Sketcher.Constraint("Horizontal", 31))
sketch2.addConstraint(Sketcher.Constraint("Vertical", 32))
sketch2.addConstraint(Sketcher.Constraint("Horizontal", 33))
sketch2.addConstraint(Sketcher.Constraint("Horizontal", 35))
sketch2.addConstraint(Sketcher.Constraint("Horizontal", 36))
sketch2.addConstraint(Sketcher.Constraint("Horizontal", 38))
sketch2.addConstraint(Sketcher.Constraint("Vertical", 39))
sketch2.addConstraint(Sketcher.Constraint("Horizontal", 40))
sketch2.addConstraint(Sketcher.Constraint("Horizontal", 42))
sketch2.addConstraint(Sketcher.Constraint("Horizontal", 44))
sketch2.addConstraint(Sketcher.Constraint("Vertical", 45))
sketch2.addConstraint(Sketcher.Constraint("Horizontal", 46))
sketch2.addConstraint(Sketcher.Constraint("Horizontal", 49))
sketch2.addConstraint(Sketcher.Constraint("Horizontal", 51))
sketch2.addConstraint(Sketcher.Constraint("Vertical", 52))
sketch2.addConstraint(Sketcher.Constraint("Horizontal", 53))
sketch2.addConstraint(Sketcher.Constraint("Horizontal", 55))
sketch2.addConstraint(Sketcher.Constraint("Horizontal", 57))
sketch2.addConstraint(Sketcher.Constraint("Vertical", 58))
sketch2.addConstraint(Sketcher.Constraint("Horizontal", 59))
sketch2.addConstraint(Sketcher.Constraint("Horizontal", 61))
sketch2.addConstraint(Sketcher.Constraint("Horizontal", 63))
sketch2.addConstraint(Sketcher.Constraint("Vertical", 64))
sketch2.addConstraint(Sketcher.Constraint("Horizontal", 65))
sketch2.addConstraint(Sketcher.Constraint("Horizontal", 67))
sketch2.addConstraint(Sketcher.Constraint("Horizontal", 69))
sketch2.addConstraint(Sketcher.Constraint("Vertical", 70))
sketch2.addConstraint(Sketcher.Constraint("Horizontal", 71))
sketch2.addConstraint(Sketcher.Constraint("Equal", 3, 5))
sketch2.addConstraint(Sketcher.Constraint("Equal", 5, 9))
sketch2.addConstraint(Sketcher.Constraint("Equal", 9, 11))
sketch2.addConstraint(Sketcher.Constraint("Equal", 11, 12))
sketch2.addConstraint(Sketcher.Constraint("Equal", 12, 14))
sketch2.addConstraint(Sketcher.Constraint("Equal", 14, 18))
sketch2.addConstraint(Sketcher.Constraint("Equal", 18, 20))
sketch2.addConstraint(Sketcher.Constraint("Equal", 20, 24))
sketch2.addConstraint(Sketcher.Constraint("Equal", 24, 28))
sketch2.addConstraint(Sketcher.Constraint("Equal", 28, 30))
sketch2.addConstraint(Sketcher.Constraint("Equal", 30, 34))
sketch2.addConstraint(Sketcher.Constraint("Equal", 34, 37))
sketch2.addConstraint(Sketcher.Constraint("Equal", 37, 41))
sketch2.addConstraint(Sketcher.Constraint("Equal", 41, 43))
sketch2.addConstraint(Sketcher.Constraint("Equal", 43, 47))
sketch2.addConstraint(Sketcher.Constraint("Equal", 47, 48))
sketch2.addConstraint(Sketcher.Constraint("Equal", 48, 50))
sketch2.addConstraint(Sketcher.Constraint("Equal", 50, 54))
sketch2.addConstraint(Sketcher.Constraint("Equal", 54, 56))
sketch2.addConstraint(Sketcher.Constraint("Equal", 56, 60))
sketch2.addConstraint(Sketcher.Constraint("Equal", 60, 62))
sketch2.addConstraint(Sketcher.Constraint("Equal", 62, 66))
sketch2.addConstraint(Sketcher.Constraint("Equal", 66, 68))
sketch2.addConstraint(Sketcher.Constraint("Symmetric", 24, 3, 37, 3, -1, 1))
sketch2.addConstraint(Sketcher.Constraint("Symmetric", 28, 3, 41, 3, -1, 1))
sketch2.addConstraint(Sketcher.Constraint("Symmetric", 12, 3, 48, 3, -1, 1))
sketch2.addConstraint(Sketcher.Constraint("Symmetric", 18, 3, 54, 3, -1, 1))
sketch2.addConstraint(Sketcher.Constraint("Symmetric", 3, 3, 60, 3, -1, 1))
sketch2.addConstraint(Sketcher.Constraint("Symmetric", 9, 3, 66, 3, -1, 1))
sketch2.addConstraint(Sketcher.Constraint("Symmetric", 25, 2, 38, 2, -1, 1))
sketch2.addConstraint(Sketcher.Constraint("Symmetric", 30, 1, 43, 1, -1, 1))
sketch2.addConstraint(Sketcher.Constraint("Symmetric", 32, 2, 45, 2, -1, 1))
sketch2.addConstraint(Sketcher.Constraint("Symmetric", 14, 1, 50, 1, -1, 1))
sketch2.addConstraint(Sketcher.Constraint("Symmetric", 16, 2, 52, 2, -1, 1))
sketch2.addConstraint(Sketcher.Constraint("Symmetric", 20, 1, 56, 1, -1, 1))
sketch2.addConstraint(Sketcher.Constraint("Symmetric", 22, 2, 58, 2, -1, 1))
sketch2.addConstraint(Sketcher.Constraint("Symmetric", 5, 1, 62, 1, -1, 1))
sketch2.addConstraint(Sketcher.Constraint("Symmetric", 7, 2, 64, 2, -1, 1))
sketch2.addConstraint(Sketcher.Constraint("Symmetric", 11, 1, 68, 1, -1, 1))
sketch2.addConstraint(Sketcher.Constraint("Symmetric", 1, 2, 70, 2, -1, 1))
sketch2.addConstraint(Sketcher.Constraint("Symmetric", 12, 3, 37, 3, -2))
sketch2.addConstraint(Sketcher.Constraint("Symmetric", 20, 3, 41, 3, -2))
sketch2.addConstraint(Sketcher.Constraint("Symmetric", 11, 3, 60, 3, -2))
sketch2.addConstraint(Sketcher.Constraint("Symmetric", 22, 2, 38, 2, -2))
sketch2.addConstraint(Sketcher.Constraint("Symmetric", 17, 2, 43, 1, -2))
sketch2.addConstraint(Sketcher.Constraint("Symmetric", 15, 2, 45, 2, -2))
sketch2.addConstraint(Sketcher.Constraint("Symmetric", 8, 2, 62, 1, -2))
sketch2.addConstraint(Sketcher.Constraint("Horizontal", 2, 2, 5, 1))
sketch2.addConstraint(Sketcher.Constraint("Horizontal", 0, 2, 7, 2))
sketch2.addConstraint(Sketcher.Constraint("Horizontal", 17, 2, 20, 1))
sketch2.addConstraint(Sketcher.Constraint("Horizontal", 15, 2, 22, 2))
sketch2.addConstraint(Sketcher.Constraint("Horizontal", 27, 2, 30, 1))
sketch2.addConstraint(Sketcher.Constraint("Horizontal", 21, 2, 39, 2))
sketch2.addConstraint(Sketcher.Constraint("Vertical", 11, 3, 12, 3))
sketch2.addConstraint(Sketcher.Constraint("Vertical", 9, 3, 14, 3))
sketch2.addConstraint(Sketcher.Constraint("Vertical", 14, 3, 18, 3))
sketch2.addConstraint(Sketcher.Constraint("Vertical", 12, 3, 20, 3))
sketch2.addConstraint(Sketcher.Constraint("Vertical", 30, 3, 34, 3))
sketch2.addConstraint(Sketcher.Constraint("Vertical", 43, 3, 47, 3))
sketch2.addConstraint(Sketcher.Constraint("Vertical", 8, 2, 14, 1))
sketch2.addConstraint(Sketcher.Constraint("Vertical", 7, 2, 15, 2))
sketch2.addConstraint(Sketcher.Constraint("Vertical", 14, 1, 17, 2))
sketch2.addConstraint(Sketcher.Constraint("Vertical", 1, 2, 21, 2))
sketch2.addConstraint(Sketcher.Constraint("Equal", 2, 6))
sketch2.addConstraint(Sketcher.Constraint("Equal", 7, 16))
sketch2.addConstraint(Sketcher.Constraint("Radius", 3, 11.0))
sketch2.addConstraint(Sketcher.Constraint("DistanceX", 4, 2, 4, 1, 50.0))
sketch2.addConstraint(Sketcher.Constraint("DistanceY", 1, 1, 1, 2, 18.0))
sketch2.addConstraint(Sketcher.Constraint("DistanceY", -1, 1, 3, 3, 16.0))
sketch2.addConstraint(Sketcher.Constraint("DistanceY", -1, 1, 12, 3, 39.0))
sketch2.addConstraint(Sketcher.Constraint("DistanceX", 6, 2, -1, 1, 105.0))
sketch2.addConstraint(Sketcher.Constraint("DistanceX", 0, 2, -1, 1, 2.5))
pocket1 = doc.addObject("PartDesign::Pocket", "Pocket")
body.addObject(pocket1)
pocket1.Profile = sketch2
pocket1.Length = 6.1

# Sketch on YZ plane
sketch3 = doc.addObject("Sketcher::SketchObject", "Sketch002")
body.addObject(sketch3)
sketch3.AttachmentSupport = (doc.YZ_Plane, [""])
sketch3.MapMode = "FlatFace"
sketch3.AttachmentOffset = App.Placement(Vector(0, 0, 3.05), App.Rotation())
add_polygon(sketch3, [(-110, 76), (-110, 60.3), (110, 60.3), (110, 76)])  # lines 0-3
add_polygon(sketch3, [(-110, -60.3), (-110, -76), (110, -76), (110, -60.3)])  # lines 4-7
sketch3.addConstraint(Sketcher.Constraint("Vertical", 0))
sketch3.addConstraint(Sketcher.Constraint("Horizontal", 1))
sketch3.addConstraint(Sketcher.Constraint("Vertical", 2))
sketch3.addConstraint(Sketcher.Constraint("Horizontal", 3))
sketch3.addConstraint(Sketcher.Constraint("Vertical", 4))
sketch3.addConstraint(Sketcher.Constraint("Horizontal", 5))
sketch3.addConstraint(Sketcher.Constraint("Vertical", 6))
sketch3.addConstraint(Sketcher.Constraint("Horizontal", 7))
sketch3.addConstraint(Sketcher.Constraint("Symmetric", 2, 2, 4, 2, -1, 1))
sketch3.addConstraint(Sketcher.Constraint("Symmetric", 0, 2, 6, 2, -1, 1))
sketch3.addConstraint(Sketcher.Constraint("Vertical", 3, 2, 4, 2))
sketch3.addConstraint(Sketcher.Constraint("DistanceX", 1, 1, 1, 2, 220.0))
sketch3.addConstraint(Sketcher.Constraint("DistanceY", 0, 2, 0, 1, 15.7))
sketch3.addConstraint(Sketcher.Constraint("DistanceY", -1, 1, 2, 2, 76.0))
pocket2 = doc.addObject("PartDesign::Pocket", "Pocket001")
body.addObject(pocket2)
pocket2.Profile = sketch3
pocket2.Length = 200
pocket2.Midplane = True

doc.recompute()
